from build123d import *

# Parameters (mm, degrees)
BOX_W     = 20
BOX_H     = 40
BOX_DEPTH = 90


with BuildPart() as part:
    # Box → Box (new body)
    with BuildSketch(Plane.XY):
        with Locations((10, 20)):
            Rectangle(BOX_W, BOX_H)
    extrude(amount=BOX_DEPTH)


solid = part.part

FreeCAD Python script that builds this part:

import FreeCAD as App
import Part
import Sketcher

V = App.Vector

doc = App.newDocument("Part")
params = doc.addObject("Spreadsheet::Sheet", "Params")
for row, (alias, value) in enumerate([
    ("sketch1_width", "20 mm"),
    ("sketch1_height", "40 mm"),
    ("pad1_length", "90 mm"),
], start=1):
    params.set(f"A{row}", alias)
    params.set(f"B{row}", "=" + value)
    params.setAlias(f"B{row}", alias)

body = doc.addObject("PartDesign::Body", "Body")

sketch1 = body.newObject("Sketcher::SketchObject", "Sketch")
sketch1.AttachmentSupport = (doc.getObject("XY_Plane"), [""])
sketch1.MapMode = "FlatFace"
sketch1.addGeometry(Part.LineSegment(V(0, 40, 0), V(0, 0, 0)), False)
sketch1.addGeometry(Part.LineSegment(V(0, 0, 0), V(20, 0, 0)), False)
sketch1.addGeometry(Part.LineSegment(V(20, 0, 0), V(20, 40, 0)), False)
sketch1.addGeometry(Part.LineSegment(V(20, 40, 0), V(0, 40, 0)), False)
sketch1.addConstraint(Sketcher.Constraint("Coincident", 0, 2, 1, 1))
sketch1.addConstraint(Sketcher.Constraint("Coincident", 1, 2, 2, 1))
sketch1.addConstraint(Sketcher.Constraint("Coincident", 2, 2, 3, 1))
sketch1.addConstraint(Sketcher.Constraint("Coincident", 3, 2, 0, 1))
sketch1.addConstraint(Sketcher.Constraint("Vertical", 0))
sketch1.addConstraint(Sketcher.Constraint("Horizontal", 1))
sketch1.addConstraint(Sketcher.Constraint("Vertical", 2))
sketch1.addConstraint(Sketcher.Constraint("Horizontal", 3))
sketch1.addConstraint(Sketcher.Constraint("Coincident", 0, 2, -1, 1))
sketch1.addConstraint(Sketcher.Constraint("DistanceX", 1, 1, 1, 2, 20.0))
sketch1.addConstraint(Sketcher.Constraint("DistanceY", 0, 2, 0, 1, 40.0))
sketch1.setExpression("Constraints[9]", "Params.sketch1_width")
sketch1.setExpression("Constraints[10]", "Params.sketch1_height")
pad1 = body.newObject("PartDesign::Pad", "Pad")
pad1.Profile = sketch1
pad1.setExpression("Length", "Params.pad1_length")

doc.recompute()
